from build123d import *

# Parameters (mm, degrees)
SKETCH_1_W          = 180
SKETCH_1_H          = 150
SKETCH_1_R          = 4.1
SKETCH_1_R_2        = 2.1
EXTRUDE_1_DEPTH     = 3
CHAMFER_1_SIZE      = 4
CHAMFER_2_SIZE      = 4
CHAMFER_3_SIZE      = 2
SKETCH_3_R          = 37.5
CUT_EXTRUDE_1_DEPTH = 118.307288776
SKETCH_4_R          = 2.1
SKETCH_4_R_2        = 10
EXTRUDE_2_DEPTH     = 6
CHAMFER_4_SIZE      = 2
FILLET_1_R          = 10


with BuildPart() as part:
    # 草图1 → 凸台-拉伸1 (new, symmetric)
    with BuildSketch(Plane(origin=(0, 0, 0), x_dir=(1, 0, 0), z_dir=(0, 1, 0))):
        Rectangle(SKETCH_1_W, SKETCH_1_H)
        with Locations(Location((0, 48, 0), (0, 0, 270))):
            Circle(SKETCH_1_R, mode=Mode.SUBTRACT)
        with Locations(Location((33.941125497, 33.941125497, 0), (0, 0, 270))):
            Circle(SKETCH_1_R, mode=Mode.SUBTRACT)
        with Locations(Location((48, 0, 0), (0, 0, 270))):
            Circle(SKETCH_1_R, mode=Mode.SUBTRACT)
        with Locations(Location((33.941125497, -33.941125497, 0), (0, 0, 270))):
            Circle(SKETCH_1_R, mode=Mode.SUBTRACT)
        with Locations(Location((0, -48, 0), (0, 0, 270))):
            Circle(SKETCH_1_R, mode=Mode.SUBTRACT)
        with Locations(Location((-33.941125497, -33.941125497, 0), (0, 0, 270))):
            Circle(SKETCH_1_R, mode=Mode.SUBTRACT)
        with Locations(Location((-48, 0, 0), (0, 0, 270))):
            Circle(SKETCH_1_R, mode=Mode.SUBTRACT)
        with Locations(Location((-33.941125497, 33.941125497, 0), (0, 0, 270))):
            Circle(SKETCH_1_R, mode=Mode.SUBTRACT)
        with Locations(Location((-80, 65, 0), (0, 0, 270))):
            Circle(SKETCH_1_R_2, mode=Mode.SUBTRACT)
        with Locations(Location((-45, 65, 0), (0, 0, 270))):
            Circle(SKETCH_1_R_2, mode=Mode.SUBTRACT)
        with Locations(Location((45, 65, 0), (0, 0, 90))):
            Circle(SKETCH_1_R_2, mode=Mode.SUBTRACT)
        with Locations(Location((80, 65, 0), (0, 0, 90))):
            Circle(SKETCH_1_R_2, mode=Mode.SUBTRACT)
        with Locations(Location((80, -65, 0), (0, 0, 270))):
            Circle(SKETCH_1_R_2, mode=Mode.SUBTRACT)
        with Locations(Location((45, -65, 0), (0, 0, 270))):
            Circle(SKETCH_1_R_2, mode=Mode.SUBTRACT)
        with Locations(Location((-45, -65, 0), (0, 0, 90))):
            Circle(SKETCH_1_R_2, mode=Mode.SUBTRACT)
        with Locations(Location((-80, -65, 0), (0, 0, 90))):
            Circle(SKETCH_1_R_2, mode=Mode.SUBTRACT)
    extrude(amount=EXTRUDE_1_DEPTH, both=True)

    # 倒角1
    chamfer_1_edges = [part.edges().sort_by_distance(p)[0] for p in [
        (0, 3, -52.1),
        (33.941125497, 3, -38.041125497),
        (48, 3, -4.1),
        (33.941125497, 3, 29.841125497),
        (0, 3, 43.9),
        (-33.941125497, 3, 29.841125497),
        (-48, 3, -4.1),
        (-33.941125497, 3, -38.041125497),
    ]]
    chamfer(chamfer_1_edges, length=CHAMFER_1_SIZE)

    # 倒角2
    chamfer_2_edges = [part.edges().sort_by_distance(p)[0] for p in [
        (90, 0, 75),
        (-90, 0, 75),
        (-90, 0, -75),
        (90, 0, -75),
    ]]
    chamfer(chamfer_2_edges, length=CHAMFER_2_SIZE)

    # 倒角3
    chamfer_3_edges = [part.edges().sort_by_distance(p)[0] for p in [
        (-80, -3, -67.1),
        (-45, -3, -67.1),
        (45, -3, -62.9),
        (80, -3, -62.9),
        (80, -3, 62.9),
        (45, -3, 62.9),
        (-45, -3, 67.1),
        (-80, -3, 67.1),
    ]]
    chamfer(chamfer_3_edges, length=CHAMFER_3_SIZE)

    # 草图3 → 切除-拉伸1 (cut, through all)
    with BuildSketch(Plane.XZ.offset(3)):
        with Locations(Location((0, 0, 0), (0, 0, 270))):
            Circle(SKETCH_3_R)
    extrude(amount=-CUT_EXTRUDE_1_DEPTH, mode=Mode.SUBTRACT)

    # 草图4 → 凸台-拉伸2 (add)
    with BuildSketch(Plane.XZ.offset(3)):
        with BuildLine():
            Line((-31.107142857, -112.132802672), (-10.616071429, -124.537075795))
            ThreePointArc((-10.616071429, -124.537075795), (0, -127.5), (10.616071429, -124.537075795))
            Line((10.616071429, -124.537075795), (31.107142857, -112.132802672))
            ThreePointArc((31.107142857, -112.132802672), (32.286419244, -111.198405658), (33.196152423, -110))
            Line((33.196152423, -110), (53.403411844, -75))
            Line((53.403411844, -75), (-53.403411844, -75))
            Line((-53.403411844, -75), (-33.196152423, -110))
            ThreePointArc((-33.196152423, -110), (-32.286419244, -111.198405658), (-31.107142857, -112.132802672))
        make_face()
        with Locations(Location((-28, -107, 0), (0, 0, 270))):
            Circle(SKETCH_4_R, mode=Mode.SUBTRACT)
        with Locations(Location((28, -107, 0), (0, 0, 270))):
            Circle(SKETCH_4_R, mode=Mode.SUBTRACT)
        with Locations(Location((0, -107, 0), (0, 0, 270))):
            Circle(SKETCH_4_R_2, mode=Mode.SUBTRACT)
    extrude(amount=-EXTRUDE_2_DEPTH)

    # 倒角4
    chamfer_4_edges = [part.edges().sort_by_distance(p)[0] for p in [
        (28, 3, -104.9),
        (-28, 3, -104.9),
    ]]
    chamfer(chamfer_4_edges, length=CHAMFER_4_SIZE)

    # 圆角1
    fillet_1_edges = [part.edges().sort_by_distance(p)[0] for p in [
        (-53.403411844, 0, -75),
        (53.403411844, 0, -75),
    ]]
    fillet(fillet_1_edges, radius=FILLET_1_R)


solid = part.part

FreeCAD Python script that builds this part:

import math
import FreeCAD as App
import Part
import Sketcher

V = App.Vector
Q = App.Units.Quantity


def edges_at(feature, points):
    """Names of the edges that pass closest to the given points."""
    edges = feature.Shape.Edges
    near = lambda p: min(range(len(edges)), key=lambda i: edges[i].distToShape(Part.Vertex(*p))[0])
    return sorted({f"Edge{near(p) + 1}" for p in points})


def add_polygon(sketch, points):
    """Adds a closed chain of lines whose ends are joined by coincident constraints."""
    first, n = sketch.GeometryCount, len(points)
    for a, b in zip(points, points[1:] + points[:1]):
        sketch.addGeometry(Part.LineSegment(App.Vector(*a, 0), App.Vector(*b, 0)), False)
    for i in range(n):
        sketch.addConstraint(Sketcher.Constraint("Coincident", first + i, 2, first + (i + 1) % n, 1))

doc = App.newDocument("Part")
params = doc.addObject("Spreadsheet::Sheet", "Params")
for row, (alias, value) in enumerate([
    ("sketch1_diameter", "4.2 mm"),
    ("sketch1_diameter2", "8.2 mm"),
    ("sketch1_width", "180 mm"),
    ("sketch1_height", "150 mm"),
    ("pad1_length", "6 mm"),
    ("chamfer_size", "4 mm"),
    ("chamfer2_size", "4 mm"),
    ("chamfer3_size", "2 mm"),
    ("sketch2_diameter", "75 mm"),
    ("sketch3_diameter", "20 mm"),
    ("sketch3_radius", "6 mm"),
    ("sketch3_diameter2", "4.2 mm"),
    ("sketch3_radius2", "20.5 mm"),
    ("pad2_length", "6 mm"),
    ("chamfer4_size", "2 mm"),
    ("fillet_radius", "10 mm"),
], start=1):
    params.set(f"A{row}", alias)
    params.set(f"B{row}", "=" + value)
    params.setAlias(f"B{row}", alias)

body = doc.addObject("PartDesign::Body", "Body")

# Sketch on XZ plane
sketch1 = doc.addObject("Sketcher::SketchObject", "Sketch")
body.addObject(sketch1)
sketch1.AttachmentSupport = (doc.XZ_Plane, [""])
sketch1.MapMode = "FlatFace"
add_polygon(sketch1, [(-90, -75), (-90, 75), (90, 75), (90, -75)])  # lines 0-3
sketch1.addGeometry(Part.Circle(V(-80, 65, 0), V(0, 0, 1), 2.1), False)  # 4
sketch1.addGeometry(Part.Circle(V(-45, 65, 0), V(0, 0, 1), 2.1), False)  # 5
sketch1.addGeometry(Part.Circle(V(-33.9, 33.9, 0), V(0, 0, 1), 4.1), False)  # 6
sketch1.addGeometry(Part.Circle(V(0, 48, 0), V(0, 0, 1), 4.1), False)  # 7
sketch1.addGeometry(Part.Circle(V(33.9, 33.9, 0), V(0, 0, 1), 4.1), False)  # 8
sketch1.addGeometry(Part.Circle(V(45, 65, 0), V(0, 0, 1), 2.1), False)  # 9
sketch1.addGeometry(Part.Circle(V(80, 65, 0), V(0, 0, 1), 2.1), False)  # 10
sketch1.addGeometry(Part.Circle(V(-48, 0, 0), V(0, 0, 1), 4.1), False)  # 11
sketch1.addGeometry(Part.Circle(V(-80, -65, 0), V(0, 0, 1), 2.1), False)  # 12
sketch1.addGeometry(Part.Circle(V(-45, -65, 0), V(0, 0, 1), 2.1), False)  # 13
sketch1.addGeometry(Part.Circle(V(-33.9, -33.9, 0), V(0, 0, 1), 4.1), False)  # 14
sketch1.addGeometry(Part.Circle(V(48, 0, 0), V(0, 0, 1), 4.1), False)  # 15
sketch1.addGeometry(Part.Circle(V(0, -48, 0), V(0, 0, 1), 4.1), False)  # 16
sketch1.addGeometry(Part.Circle(V(33.9, -33.9, 0), V(0, 0, 1), 4.1), False)  # 17
sketch1.addGeometry(Part.Circle(V(45, -65, 0), V(0, 0, 1), 2.1), False)  # 18
sketch1.addGeometry(Part.Circle(V(80, -65, 0), V(0, 0, 1), 2.1), False)  # 19
sketch1.addConstraint([
    Sketcher.Constraint("Vertical", 0),
    Sketcher.Constraint("Horizontal", 1),
    Sketcher.Constraint("Vertical", 2),
    Sketcher.Constraint("Horizontal", 3),
    Sketcher.Constraint("Equal", 4, 5),
    Sketcher.Constraint("Equal", 6, 7),
    Sketcher.Constraint("Equal", 7, 8),
    Sketcher.Constraint("Equal", 5, 9),
    Sketcher.Constraint("Equal", 9, 10),
    Sketcher.Constraint("Equal", 8, 11),
    Sketcher.Constraint("Equal", 10, 12),
    Sketcher.Constraint("Equal", 12, 13),
    Sketcher.Constraint("Equal", 11, 14),
    Sketcher.Constraint("Equal", 14, 15),
    Sketcher.Constraint("Equal", 15, 16),
    Sketcher.Constraint("Equal", 16, 17),
    Sketcher.Constraint("Equal", 13, 18),
    Sketcher.Constraint("Equal", 18, 19),
    Sketcher.Constraint("Symmetric", 10, 3, 12, 3, -1, 1),
    Sketcher.Constraint("Symmetric", 9, 3, 13, 3, -1, 1),
    Sketcher.Constraint("Symmetric", 8, 3, 14, 3, -1, 1),
    Sketcher.Constraint("Symmetric", 11, 3, 15, 3, -1, 1),
    Sketcher.Constraint("Symmetric", 7, 3, 16, 3, -1, 1),
    Sketcher.Constraint("Symmetric", 6, 3, 17, 3, -1, 1),
    Sketcher.Constraint("Symmetric", 5, 3, 18, 3, -1, 1),
    Sketcher.Constraint("Symmetric", 4, 3, 19, 3, -1, 1),
    Sketcher.Constraint("Symmetric", 0, 2, 2, 2, -1, 1),
    Sketcher.Constraint("Symmetric", 6, 3, 8, 3, -2),
    Sketcher.Constraint("Symmetric", 5, 3, 9, 3, -2),
    Sketcher.Constraint("Symmetric", 4, 3, 10, 3, -2),
    Sketcher.Constraint("PointOnObject", 7, 3, -2),
    Sketcher.Constraint("PointOnObject", 11, 3, -1),
    Sketcher.Constraint("Horizontal", 4, 3, 5, 3),
    Sketcher.Constraint("Diameter", 4, 4.2),
    Sketcher.Constraint("Diameter", 6, 8.2),
    Sketcher.Constraint("DistanceX", 1, 1, 1, 2, 180.0),
    Sketcher.Constraint("DistanceY", 0, 1, 0, 2, 150.0),
    Sketcher.Constraint("DistanceX", 4, 3, -1, 1, 80.0),
    Sketcher.Constraint("DistanceY", -1, 1, 4, 3, 65.0),
    Sketcher.Constraint("DistanceX", 5, 3, -1, 1, 45.0),
    Sketcher.Constraint("DistanceY", -1, 1, 7, 3, 48.0),
    Sketcher.Constraint("DistanceX", 11, 3, -1, 1, 48.0),
    Sketcher.Constraint("DistanceX", 6, 3, 8, 3, 67.882251),
    Sketcher.Constraint("DistanceY", 14, 3, 6, 3, 67.882251),
])
sketch1.setExpression("Constraints[37]", "Params.sketch1_diameter")
sketch1.setExpression("Constraints[38]", "Params.sketch1_diameter2")
sketch1.setExpression("Constraints[39]", "Params.sketch1_width")
sketch1.setExpression("Constraints[40]", "Params.sketch1_height")
pad1 = doc.addObject("PartDesign::Pad", "Pad")
body.addObject(pad1)
pad1.Profile = sketch1
pad1.setExpression("Length", "Params.pad1_length")
pad1.Midplane = True
doc.recompute()

chamfer = doc.addObject("PartDesign::Chamfer", "Chamfer")
body.addObject(chamfer)
chamfer.Base = (pad1, edges_at(pad1, [
    (0, 3, -52.1),
    (33.941, 3, -38.041),
    (48, 3, -4.1),
    (33.941, 3, 29.841),
    (0, 3, 43.9),
    (-33.941, 3, 29.841),
    (-48, 3, -4.1),
    (-33.941, 3, -38.041),
]))
chamfer.setExpression("Size", "Params.chamfer_size")
doc.recompute()

chamfer2 = doc.addObject("PartDesign::Chamfer", "Chamfer001")
body.addObject(chamfer2)
chamfer2.Base = (chamfer, edges_at(chamfer, [
    (90, 0, 75),
    (-90, 0, 75),
    (-90, 0, -75),
    (90, 0, -75),
]))
chamfer2.setExpression("Size", "Params.chamfer2_size")
doc.recompute()

chamfer3 = doc.addObject("PartDesign::Chamfer", "Chamfer002")
body.addObject(chamfer3)
chamfer3.Base = (chamfer2, edges_at(chamfer2, [
    (-80, -3, -67.1),
    (-45, -3, -67.1),
    (45, -3, -62.9),
    (80, -3, -62.9),
    (80, -3, 62.9),
    (45, -3, 62.9),
    (-45, -3, 67.1),
    (-80, -3, 67.1),
]))
chamfer3.setExpression("Size", "Params.chamfer3_size")

# Sketch on XZ plane
sketch2 = doc.addObject("Sketcher::SketchObject", "Sketch001")
body.addObject(sketch2)
sketch2.AttachmentSupport = (doc.XZ_Plane, [""])
sketch2.MapMode = "FlatFace"
sketch2.AttachmentOffset = App.Placement(V(0, 0, 3), App.Rotation())
sketch2.addGeometry(Part.Circle(V(0, 0, 0), V(0, 0, 1), 38), False)
sketch2.addConstraint([
    Sketcher.Constraint("Coincident", 0, 3, -1, 1),
    Sketcher.Constraint("Diameter", 0, 75.0),
])
sketch2.setExpression("Constraints[1]", "Params.sketch2_diameter")
pocket1 = doc.addObject("PartDesign::Pocket", "Pocket")
body.addObject(pocket1)
pocket1.Profile = sketch2
pocket1.Type = "ThroughAll"

# Sketch on XZ plane
sketch3 = doc.addObject("Sketcher::SketchObject", "Sketch002")
body.addObject(sketch3)
sketch3.AttachmentSupport = (doc.XZ_Plane, [""])
sketch3.MapMode = "FlatFace"
sketch3.AttachmentOffset = App.Placement(V(0, 0, 3), App.Rotation())
sketch3.addGeometry([
    Part.LineSegment(V(-31.1, -112.1, 0), V(-10.6, -124.5, 0)),  # 0
    Part.ArcOfCircle(Part.Circle(V(0, -107, 0), V(0, 0, 1), 20.5), math.radians(-121), math.radians(-59)),  # 1
    Part.LineSegment(V(10.6, -124.5, 0), V(31.1, -112.1, 0)),  # 2
    Part.ArcOfCircle(Part.Circle(V(28, -107, 0), V(0, 0, 1), 6), math.radians(-59), math.radians(-30)),  # 3
    Part.LineSegment(V(33.2, -110, 0), V(53.4, -75, 0)),  # 4
    Part.LineSegment(V(53.4, -75, 0), V(-53.4, -75, 0)),  # 5
    Part.LineSegment(V(-53.4, -75, 0), V(-33.2, -110, 0)),  # 6
    Part.ArcOfCircle(Part.Circle(V(-28, -107, 0), V(0, 0, 1), 6), math.radians(-150), math.radians(-121)),  # 7
    Part.Circle(V(-28, -107, 0), V(0, 0, 1), 2.1),  # 8
    Part.Circle(V(0, -107, 0), V(0, 0, 1), 10),  # 9
    Part.Circle(V(28, -107, 0), V(0, 0, 1), 2.1),  # 10
], False)
sketch3.addConstraint([
    Sketcher.Constraint("Tangent", 0, 2, 1, 1),
    Sketcher.Constraint("Tangent", 1, 2, 2, 1),
    Sketcher.Constraint("Tangent", 2, 2, 3, 1),
    Sketcher.Constraint("Tangent", 3, 2, 4, 1),
    Sketcher.Constraint("Coincident", 4, 2, 5, 1),
    Sketcher.Constraint("Coincident", 5, 2, 6, 1),
    Sketcher.Constraint("Tangent", 6, 2, 7, 1),
    Sketcher.Constraint("Tangent", 7, 2, 0, 1),
    Sketcher.Constraint("Horizontal", 5),
    Sketcher.Constraint("Coincident", 8, 3, 7, 3),
    Sketcher.Constraint("Coincident", 9, 3, 1, 3),
    Sketcher.Constraint("Coincident", 10, 3, 3, 3),
    Sketcher.Constraint("Equal", 3, 7),
    Sketcher.Constraint("Equal", 8, 10),
    Sketcher.Constraint("Symmetric", 3, 3, 7, 3, -2),
    Sketcher.Constraint("PointOnObject", 1, 3, -2),
    Sketcher.Constraint("Horizontal", 1, 3, 3, 3),
    Sketcher.Constraint("Horizontal", 3, 2, 6, 2),
    Sketcher.Constraint("Diameter", 9, 20.0),
    Sketcher.Constraint("Radius", 3, 6.0),
    Sketcher.Constraint("Diameter", 8, 4.2),
    Sketcher.Constraint("Radius", 1, 20.5),
    Sketcher.Constraint("Angle", 4, Q("60 deg")),
    Sketcher.Constraint("DistanceY", 1, 3, -1, 1, 107.0),
    Sketcher.Constraint("DistanceX", -1, 1, 3, 3, 28.0),
    Sketcher.Constraint("DistanceY", 4, 2, -1, 1, 75.0),
])
sketch3.setExpression("Constraints[18]", "Params.sketch3_diameter")
sketch3.setExpression("Constraints[19]", "Params.sketch3_radius")
sketch3.setExpression("Constraints[20]", "Params.sketch3_diameter2")
sketch3.setExpression("Constraints[21]", "Params.sketch3_radius2")
pad2 = doc.addObject("PartDesign::Pad", "Pad001")
body.addObject(pad2)
pad2.Profile = sketch3
pad2.setExpression("Length", "Params.pad2_length")
pad2.Reversed = True
doc.recompute()

chamfer4 = doc.addObject("PartDesign::Chamfer", "Chamfer003")
body.addObject(chamfer4)
chamfer4.Base = (pad2, edges_at(pad2, [(28, 3, -104.9), (-28, 3, -104.9)]))
chamfer4.setExpression("Size", "Params.chamfer4_size")
doc.recompute()

fillet = doc.addObject("PartDesign::Fillet", "Fillet")
body.addObject(fillet)
fillet.Base = (chamfer4, edges_at(chamfer4, [(-53.403, 0, -75), (53.403, 0, -75)]))
fillet.setExpression("Radius", "Params.fillet_radius")

doc.recompute()
